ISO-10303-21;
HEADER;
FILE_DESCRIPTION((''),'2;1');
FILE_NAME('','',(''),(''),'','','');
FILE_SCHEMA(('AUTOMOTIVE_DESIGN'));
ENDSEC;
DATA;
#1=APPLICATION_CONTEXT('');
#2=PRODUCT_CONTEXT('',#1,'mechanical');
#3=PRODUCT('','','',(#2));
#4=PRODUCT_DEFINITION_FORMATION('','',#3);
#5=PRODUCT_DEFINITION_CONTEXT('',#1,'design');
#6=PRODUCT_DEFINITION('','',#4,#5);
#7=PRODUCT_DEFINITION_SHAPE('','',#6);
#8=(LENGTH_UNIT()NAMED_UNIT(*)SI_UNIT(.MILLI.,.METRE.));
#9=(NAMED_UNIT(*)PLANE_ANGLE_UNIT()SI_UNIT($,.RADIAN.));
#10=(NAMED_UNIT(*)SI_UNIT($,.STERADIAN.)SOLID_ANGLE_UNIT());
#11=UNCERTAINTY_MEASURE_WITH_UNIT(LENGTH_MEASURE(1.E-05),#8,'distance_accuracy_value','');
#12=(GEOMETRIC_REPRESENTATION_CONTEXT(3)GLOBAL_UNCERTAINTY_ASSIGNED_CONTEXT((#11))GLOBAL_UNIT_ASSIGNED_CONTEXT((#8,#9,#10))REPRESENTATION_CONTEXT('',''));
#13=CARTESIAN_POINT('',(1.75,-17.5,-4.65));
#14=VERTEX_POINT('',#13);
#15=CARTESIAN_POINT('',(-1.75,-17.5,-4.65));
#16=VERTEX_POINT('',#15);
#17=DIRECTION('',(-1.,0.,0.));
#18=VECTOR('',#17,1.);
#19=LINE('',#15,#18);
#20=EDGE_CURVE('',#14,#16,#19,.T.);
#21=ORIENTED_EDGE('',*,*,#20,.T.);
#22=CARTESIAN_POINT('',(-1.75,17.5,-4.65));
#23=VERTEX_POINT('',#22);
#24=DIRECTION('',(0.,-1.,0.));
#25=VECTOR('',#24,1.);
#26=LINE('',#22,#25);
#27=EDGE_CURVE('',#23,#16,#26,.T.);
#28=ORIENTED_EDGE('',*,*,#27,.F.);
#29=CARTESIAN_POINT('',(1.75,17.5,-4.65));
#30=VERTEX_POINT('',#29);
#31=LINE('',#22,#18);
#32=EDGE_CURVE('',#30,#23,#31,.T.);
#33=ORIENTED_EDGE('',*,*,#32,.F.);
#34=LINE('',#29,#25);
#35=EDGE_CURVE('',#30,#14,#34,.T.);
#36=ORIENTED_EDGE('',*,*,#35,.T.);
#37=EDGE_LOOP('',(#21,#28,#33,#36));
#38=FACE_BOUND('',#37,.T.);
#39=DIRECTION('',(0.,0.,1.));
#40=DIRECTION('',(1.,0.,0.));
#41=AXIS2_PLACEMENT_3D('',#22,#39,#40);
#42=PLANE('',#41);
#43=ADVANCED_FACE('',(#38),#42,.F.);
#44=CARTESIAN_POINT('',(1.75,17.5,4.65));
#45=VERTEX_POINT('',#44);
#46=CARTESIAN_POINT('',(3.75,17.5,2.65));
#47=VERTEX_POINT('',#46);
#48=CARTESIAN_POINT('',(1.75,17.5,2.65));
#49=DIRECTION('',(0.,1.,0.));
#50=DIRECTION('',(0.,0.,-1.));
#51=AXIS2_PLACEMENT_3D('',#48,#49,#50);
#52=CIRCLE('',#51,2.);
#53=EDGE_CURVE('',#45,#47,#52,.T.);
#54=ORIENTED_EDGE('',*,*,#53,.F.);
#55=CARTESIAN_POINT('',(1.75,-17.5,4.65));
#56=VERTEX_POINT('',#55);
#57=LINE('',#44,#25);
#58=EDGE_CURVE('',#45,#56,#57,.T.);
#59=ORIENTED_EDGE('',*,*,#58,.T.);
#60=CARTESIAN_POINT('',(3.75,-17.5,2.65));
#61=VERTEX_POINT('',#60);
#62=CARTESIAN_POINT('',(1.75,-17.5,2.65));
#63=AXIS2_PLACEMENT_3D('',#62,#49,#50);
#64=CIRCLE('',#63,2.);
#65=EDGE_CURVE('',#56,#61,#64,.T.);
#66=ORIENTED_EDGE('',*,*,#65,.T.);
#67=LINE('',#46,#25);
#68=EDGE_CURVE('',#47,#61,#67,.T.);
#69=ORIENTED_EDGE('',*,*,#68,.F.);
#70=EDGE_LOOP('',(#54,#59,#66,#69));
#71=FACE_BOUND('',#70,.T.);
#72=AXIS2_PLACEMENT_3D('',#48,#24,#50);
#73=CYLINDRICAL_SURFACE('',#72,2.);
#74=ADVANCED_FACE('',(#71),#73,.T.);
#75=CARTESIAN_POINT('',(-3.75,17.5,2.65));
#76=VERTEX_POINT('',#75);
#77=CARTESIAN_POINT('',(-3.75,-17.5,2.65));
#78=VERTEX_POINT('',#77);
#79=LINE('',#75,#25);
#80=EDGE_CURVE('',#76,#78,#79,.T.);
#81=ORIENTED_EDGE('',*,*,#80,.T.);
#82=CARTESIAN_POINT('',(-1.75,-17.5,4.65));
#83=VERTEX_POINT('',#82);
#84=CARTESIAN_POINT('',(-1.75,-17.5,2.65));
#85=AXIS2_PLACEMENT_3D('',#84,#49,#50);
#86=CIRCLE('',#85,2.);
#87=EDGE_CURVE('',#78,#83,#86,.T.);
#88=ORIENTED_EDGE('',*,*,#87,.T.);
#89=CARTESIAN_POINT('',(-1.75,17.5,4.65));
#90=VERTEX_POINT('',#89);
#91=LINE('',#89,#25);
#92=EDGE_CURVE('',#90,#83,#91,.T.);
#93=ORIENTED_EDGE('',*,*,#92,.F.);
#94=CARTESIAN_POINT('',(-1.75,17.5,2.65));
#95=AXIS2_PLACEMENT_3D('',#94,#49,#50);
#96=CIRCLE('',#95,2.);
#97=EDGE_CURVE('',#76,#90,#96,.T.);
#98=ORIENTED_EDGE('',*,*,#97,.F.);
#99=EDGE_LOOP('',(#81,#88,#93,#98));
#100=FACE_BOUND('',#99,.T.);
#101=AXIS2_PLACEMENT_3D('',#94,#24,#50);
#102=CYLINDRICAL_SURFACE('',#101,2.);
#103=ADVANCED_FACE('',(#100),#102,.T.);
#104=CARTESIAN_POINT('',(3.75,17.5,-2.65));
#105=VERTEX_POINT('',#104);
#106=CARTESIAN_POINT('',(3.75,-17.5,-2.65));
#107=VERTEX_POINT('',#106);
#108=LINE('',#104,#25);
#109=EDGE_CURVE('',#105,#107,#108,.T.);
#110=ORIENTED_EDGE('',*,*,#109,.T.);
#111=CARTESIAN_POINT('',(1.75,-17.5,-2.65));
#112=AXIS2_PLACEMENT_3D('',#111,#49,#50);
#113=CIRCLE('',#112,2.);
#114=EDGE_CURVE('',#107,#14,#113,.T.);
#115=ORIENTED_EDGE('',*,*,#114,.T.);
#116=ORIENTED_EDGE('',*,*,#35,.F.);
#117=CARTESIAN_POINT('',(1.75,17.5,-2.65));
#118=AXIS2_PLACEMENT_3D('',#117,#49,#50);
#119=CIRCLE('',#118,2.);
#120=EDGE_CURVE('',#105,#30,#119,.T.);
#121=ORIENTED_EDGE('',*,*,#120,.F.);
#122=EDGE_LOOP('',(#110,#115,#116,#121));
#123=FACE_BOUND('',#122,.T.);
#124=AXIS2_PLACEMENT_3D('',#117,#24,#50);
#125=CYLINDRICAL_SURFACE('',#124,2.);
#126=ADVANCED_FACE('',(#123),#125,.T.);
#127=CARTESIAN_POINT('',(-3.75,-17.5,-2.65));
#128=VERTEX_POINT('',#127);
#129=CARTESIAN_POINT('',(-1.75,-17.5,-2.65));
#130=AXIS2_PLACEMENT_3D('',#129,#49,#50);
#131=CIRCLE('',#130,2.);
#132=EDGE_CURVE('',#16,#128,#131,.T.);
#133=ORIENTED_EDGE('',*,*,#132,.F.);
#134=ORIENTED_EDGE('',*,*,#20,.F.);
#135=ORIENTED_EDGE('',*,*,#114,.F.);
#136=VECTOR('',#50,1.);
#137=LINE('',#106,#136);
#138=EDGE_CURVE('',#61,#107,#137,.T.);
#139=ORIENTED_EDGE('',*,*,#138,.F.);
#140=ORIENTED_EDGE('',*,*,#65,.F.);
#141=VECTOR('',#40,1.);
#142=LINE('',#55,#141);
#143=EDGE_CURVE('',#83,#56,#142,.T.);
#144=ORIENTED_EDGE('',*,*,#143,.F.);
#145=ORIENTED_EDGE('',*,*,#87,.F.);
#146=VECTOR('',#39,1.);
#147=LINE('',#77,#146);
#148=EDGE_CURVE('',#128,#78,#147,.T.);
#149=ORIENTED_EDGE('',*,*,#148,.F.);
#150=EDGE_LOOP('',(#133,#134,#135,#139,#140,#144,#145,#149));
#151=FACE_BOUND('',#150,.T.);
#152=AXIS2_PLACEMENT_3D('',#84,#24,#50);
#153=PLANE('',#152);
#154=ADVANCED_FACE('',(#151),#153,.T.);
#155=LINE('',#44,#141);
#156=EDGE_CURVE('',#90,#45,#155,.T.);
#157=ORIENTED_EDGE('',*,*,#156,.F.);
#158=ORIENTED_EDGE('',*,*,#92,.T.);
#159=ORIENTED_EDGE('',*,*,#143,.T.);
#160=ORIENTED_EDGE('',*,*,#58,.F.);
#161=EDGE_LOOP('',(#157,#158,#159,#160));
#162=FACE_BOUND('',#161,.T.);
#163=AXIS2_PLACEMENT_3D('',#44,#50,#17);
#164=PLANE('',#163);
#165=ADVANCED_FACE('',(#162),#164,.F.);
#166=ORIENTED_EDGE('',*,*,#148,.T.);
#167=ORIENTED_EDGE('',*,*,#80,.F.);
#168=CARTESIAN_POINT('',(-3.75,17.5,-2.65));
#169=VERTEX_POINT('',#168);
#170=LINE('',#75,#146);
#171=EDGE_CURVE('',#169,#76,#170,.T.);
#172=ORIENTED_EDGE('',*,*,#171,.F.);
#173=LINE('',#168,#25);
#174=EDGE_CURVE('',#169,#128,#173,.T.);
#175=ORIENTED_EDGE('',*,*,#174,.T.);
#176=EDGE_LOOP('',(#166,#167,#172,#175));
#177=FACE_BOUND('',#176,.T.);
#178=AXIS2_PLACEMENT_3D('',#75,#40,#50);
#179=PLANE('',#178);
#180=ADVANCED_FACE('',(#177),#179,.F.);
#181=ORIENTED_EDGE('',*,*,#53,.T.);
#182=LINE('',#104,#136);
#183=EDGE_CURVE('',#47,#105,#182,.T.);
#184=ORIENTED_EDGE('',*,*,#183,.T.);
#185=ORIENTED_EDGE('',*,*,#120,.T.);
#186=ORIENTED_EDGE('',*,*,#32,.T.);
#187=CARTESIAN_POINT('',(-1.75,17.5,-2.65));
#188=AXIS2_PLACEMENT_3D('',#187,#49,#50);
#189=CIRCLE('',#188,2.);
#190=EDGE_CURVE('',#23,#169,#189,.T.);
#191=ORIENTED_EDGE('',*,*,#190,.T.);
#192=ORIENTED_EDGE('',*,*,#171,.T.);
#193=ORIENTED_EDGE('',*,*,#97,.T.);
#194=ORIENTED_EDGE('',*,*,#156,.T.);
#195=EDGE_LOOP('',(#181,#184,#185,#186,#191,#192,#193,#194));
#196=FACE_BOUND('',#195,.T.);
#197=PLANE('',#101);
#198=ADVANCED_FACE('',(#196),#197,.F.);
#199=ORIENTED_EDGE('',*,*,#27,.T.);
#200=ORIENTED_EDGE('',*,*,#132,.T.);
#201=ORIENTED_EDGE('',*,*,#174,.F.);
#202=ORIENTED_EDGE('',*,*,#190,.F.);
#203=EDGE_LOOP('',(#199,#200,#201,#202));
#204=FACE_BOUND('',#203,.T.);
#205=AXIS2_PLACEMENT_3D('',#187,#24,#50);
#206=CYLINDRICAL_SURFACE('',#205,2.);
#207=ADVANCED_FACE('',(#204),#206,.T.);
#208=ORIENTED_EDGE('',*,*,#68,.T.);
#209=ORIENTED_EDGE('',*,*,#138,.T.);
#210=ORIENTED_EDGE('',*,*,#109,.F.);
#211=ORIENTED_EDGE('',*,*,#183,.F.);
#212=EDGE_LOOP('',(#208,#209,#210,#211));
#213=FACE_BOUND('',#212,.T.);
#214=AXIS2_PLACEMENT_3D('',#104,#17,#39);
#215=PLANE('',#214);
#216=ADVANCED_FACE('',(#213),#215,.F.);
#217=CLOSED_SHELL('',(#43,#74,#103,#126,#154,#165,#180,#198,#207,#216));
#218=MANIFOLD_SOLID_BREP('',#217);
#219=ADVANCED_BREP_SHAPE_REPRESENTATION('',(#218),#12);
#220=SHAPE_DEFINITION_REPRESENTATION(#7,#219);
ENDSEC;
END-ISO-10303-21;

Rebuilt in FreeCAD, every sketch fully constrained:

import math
import FreeCAD as App
import Part
import Sketcher
from FreeCAD import Vector
Q = App.Units.Quantity

doc = App.newDocument("Part")
body = doc.addObject("PartDesign::Body", "Body")

# Sketch on XZ plane
sketch1 = body.newObject("Sketcher::SketchObject", "Sketch")
sketch1.AttachmentSupport = (doc.getObject("XZ_Plane"), [""])
sketch1.MapMode = "FlatFace"
sketch1.addGeometry(Part.LineSegment(Vector(-3.75, -2.65, 0), Vector(-3.75, 2.65, 0)), False)
sketch1.addGeometry(Part.ArcOfCircle(Part.Circle(Vector(-1.75, 2.65, 0), Vector(0, 0, 1), 2), math.radians(90), math.radians(180)), False)
sketch1.addGeometry(Part.LineSegment(Vector(-1.75, 4.65, 0), Vector(1.75, 4.65, 0)), False)
sketch1.addGeometry(Part.ArcOfCircle(Part.Circle(Vector(1.75, 2.65, 0), Vector(0, 0, 1), 2), math.radians(0), math.radians(90)), False)
sketch1.addGeometry(Part.LineSegment(Vector(3.75, 2.65, 0), Vector(3.75, -2.65, 0)), False)
sketch1.addGeometry(Part.ArcOfCircle(Part.Circle(Vector(1.75, -2.65, 0), Vector(0, 0, 1), 2), math.radians(-90), math.radians(0)), False)
sketch1.addGeometry(Part.LineSegment(Vector(1.75, -4.65, 0), Vector(-1.75, -4.65, 0)), False)
sketch1.addGeometry(Part.ArcOfCircle(Part.Circle(Vector(-1.75, -2.65, 0), Vector(0, 0, 1), 2), math.radians(-180), math.radians(-90)), False)
sketch1.addConstraint(Sketcher.Constraint("Tangent", 0, 2, 1, 2))
sketch1.addConstraint(Sketcher.Constraint("Tangent", 1, 1, 2, 1))
sketch1.addConstraint(Sketcher.Constraint("Tangent", 2, 2, 3, 2))
sketch1.addConstraint(Sketcher.Constraint("Tangent", 3, 1, 4, 1))
sketch1.addConstraint(Sketcher.Constraint("Tangent", 4, 2, 5, 2))
sketch1.addConstraint(Sketcher.Constraint("Tangent", 5, 1, 6, 1))
sketch1.addConstraint(Sketcher.Constraint("Tangent", 6, 2, 7, 2))
sketch1.addConstraint(Sketcher.Constraint("Tangent", 7, 1, 0, 1))
sketch1.addConstraint(Sketcher.Constraint("Vertical", 0))
sketch1.addConstraint(Sketcher.Constraint("Horizontal", 2))
sketch1.addConstraint(Sketcher.Constraint("Vertical", 4))
sketch1.addConstraint(Sketcher.Constraint("Horizontal", 6))
sketch1.addConstraint(Sketcher.Constraint("Equal", 1, 3))
sketch1.addConstraint(Sketcher.Constraint("Equal", 3, 5))
sketch1.addConstraint(Sketcher.Constraint("Equal", 5, 7))
sketch1.addConstraint(Sketcher.Constraint("Symmetric", 1, 3, 5, 3, -1, 1))
sketch1.addConstraint(Sketcher.Constraint("Radius", 1, Q("2 mm")))
sketch1.addConstraint(Sketcher.Constraint("DistanceX", 2, 1, 2, 2, Q("3.5 mm")))
sketch1.addConstraint(Sketcher.Constraint("DistanceY", 0, 1, 0, 2, Q("5.3 mm")))
pad1 = body.newObject("PartDesign::Pad", "Pad")
pad1.Profile = sketch1
pad1.Length = 35
pad1.Midplane = True

doc.recompute()
